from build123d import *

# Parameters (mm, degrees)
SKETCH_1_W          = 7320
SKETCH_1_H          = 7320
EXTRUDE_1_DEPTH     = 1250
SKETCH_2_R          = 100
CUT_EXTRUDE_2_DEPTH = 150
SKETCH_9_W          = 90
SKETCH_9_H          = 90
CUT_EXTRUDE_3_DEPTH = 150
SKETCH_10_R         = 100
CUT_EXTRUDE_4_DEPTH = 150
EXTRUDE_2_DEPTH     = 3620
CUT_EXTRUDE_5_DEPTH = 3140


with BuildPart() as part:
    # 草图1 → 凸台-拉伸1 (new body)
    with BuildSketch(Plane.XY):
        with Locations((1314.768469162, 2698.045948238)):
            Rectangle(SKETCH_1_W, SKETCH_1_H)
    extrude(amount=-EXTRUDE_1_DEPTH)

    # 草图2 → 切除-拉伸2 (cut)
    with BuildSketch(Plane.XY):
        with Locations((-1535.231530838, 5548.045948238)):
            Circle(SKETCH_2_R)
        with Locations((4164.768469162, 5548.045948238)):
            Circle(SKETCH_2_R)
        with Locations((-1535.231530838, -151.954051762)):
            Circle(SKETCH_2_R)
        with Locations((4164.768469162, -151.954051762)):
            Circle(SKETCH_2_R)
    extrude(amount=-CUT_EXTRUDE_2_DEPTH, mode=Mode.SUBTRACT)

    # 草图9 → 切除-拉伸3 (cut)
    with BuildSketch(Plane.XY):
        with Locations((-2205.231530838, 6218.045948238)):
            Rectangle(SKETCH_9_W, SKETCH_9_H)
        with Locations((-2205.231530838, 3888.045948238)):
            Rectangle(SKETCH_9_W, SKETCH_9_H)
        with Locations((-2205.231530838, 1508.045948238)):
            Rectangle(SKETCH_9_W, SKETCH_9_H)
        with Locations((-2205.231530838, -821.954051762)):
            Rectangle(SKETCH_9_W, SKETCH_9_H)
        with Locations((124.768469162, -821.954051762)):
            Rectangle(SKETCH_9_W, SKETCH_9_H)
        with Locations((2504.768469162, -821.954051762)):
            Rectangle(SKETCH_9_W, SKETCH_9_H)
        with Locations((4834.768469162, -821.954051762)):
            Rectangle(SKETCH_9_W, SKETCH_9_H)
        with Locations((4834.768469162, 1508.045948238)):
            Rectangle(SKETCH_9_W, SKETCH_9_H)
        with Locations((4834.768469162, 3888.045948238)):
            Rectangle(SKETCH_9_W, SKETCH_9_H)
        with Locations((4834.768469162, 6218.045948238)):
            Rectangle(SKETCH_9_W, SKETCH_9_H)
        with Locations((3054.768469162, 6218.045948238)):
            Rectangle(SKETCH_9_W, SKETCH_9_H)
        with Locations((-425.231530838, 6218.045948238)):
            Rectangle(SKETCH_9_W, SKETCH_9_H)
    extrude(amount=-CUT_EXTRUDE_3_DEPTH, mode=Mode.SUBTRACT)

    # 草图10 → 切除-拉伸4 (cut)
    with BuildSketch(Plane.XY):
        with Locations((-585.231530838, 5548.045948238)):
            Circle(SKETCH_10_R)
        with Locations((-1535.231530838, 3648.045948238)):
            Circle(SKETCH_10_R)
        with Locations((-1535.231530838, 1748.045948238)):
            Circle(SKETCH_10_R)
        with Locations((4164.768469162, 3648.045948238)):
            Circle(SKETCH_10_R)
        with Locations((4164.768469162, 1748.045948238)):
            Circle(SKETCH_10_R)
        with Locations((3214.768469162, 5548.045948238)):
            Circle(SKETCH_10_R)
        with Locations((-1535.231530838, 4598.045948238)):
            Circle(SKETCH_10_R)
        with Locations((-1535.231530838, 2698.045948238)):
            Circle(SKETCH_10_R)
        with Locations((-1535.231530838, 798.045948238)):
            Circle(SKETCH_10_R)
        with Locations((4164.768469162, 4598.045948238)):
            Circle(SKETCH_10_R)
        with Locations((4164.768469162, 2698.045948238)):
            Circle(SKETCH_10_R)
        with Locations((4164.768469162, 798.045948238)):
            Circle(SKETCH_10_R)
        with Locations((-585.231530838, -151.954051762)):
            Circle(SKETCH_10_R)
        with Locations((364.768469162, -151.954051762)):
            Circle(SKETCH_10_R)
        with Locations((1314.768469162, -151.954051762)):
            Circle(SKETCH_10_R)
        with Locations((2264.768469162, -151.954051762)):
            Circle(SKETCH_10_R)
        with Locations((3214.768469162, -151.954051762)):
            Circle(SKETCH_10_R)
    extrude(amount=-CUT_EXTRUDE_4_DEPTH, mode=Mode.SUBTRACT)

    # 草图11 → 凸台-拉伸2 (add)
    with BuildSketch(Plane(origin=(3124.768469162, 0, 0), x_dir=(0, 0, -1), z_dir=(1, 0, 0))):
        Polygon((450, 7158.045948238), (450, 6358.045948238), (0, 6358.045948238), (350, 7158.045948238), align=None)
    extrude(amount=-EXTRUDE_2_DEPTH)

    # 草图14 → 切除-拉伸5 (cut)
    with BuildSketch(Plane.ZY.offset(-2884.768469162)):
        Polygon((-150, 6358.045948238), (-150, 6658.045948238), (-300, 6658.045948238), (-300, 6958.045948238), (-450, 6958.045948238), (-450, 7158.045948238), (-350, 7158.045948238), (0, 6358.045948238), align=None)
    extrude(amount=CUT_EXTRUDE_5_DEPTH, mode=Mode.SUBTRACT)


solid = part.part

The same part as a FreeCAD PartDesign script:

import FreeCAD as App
import Part
import Sketcher
from FreeCAD import Vector
Q = App.Units.Quantity


def add_polygon(sketch, points):
    """Adds a closed chain of lines whose ends are joined by coincident constraints."""
    first, n = sketch.GeometryCount, len(points)
    for a, b in zip(points, points[1:] + points[:1]):
        sketch.addGeometry(Part.LineSegment(App.Vector(*a, 0), App.Vector(*b, 0)), False)
    for i in range(n):
        sketch.addConstraint(Sketcher.Constraint("Coincident", first + i, 2, first + (i + 1) % n, 1))

doc = App.newDocument("Part")
body = doc.addObject("PartDesign::Body", "Body")

sketch1 = body.newObject("Sketcher::SketchObject", "Sketch")
sketch1.AttachmentSupport = (doc.getObject("XY_Plane"), [""])
sketch1.MapMode = "FlatFace"
add_polygon(sketch1, [(-2345, 6358), (-2345, -962), (4975, -962), (4975, 6358)])
sketch1.addConstraint(Sketcher.Constraint("Vertical", 0))
sketch1.addConstraint(Sketcher.Constraint("Horizontal", 1))
sketch1.addConstraint(Sketcher.Constraint("Vertical", 2))
sketch1.addConstraint(Sketcher.Constraint("Horizontal", 3))
sketch1.addConstraint(Sketcher.Constraint("Equal", 3, 0))
sketch1.addConstraint(Sketcher.Constraint("DistanceX", 1, 1, 1, 2, Q("7320 mm")))
sketch1.addConstraint(Sketcher.Constraint("DistanceX", 0, 2, -1, 1, Q("2345.231531 mm")))
sketch1.addConstraint(Sketcher.Constraint("DistanceY", 0, 2, -1, 1, Q("961.954052 mm")))
pad1 = body.newObject("PartDesign::Pad", "Pad")
pad1.Profile = sketch1
pad1.Length = 1250
pad1.Reversed = True

sketch2 = body.newObject("Sketcher::SketchObject", "Sketch001")
sketch2.AttachmentSupport = (doc.getObject("XY_Plane"), [""])
sketch2.MapMode = "FlatFace"
sketch2.addGeometry(Part.Circle(Vector(-1535, 5548, 0), Vector(0, 0, 1), 100), False)
sketch2.addGeometry(Part.Circle(Vector(4165, 5548, 0), Vector(0, 0, 1), 100), False)
sketch2.addGeometry(Part.Circle(Vector(-1535, -152, 0), Vector(0, 0, 1), 100), False)
sketch2.addGeometry(Part.Circle(Vector(4165, -152, 0), Vector(0, 0, 1), 100), False)
sketch2.addConstraint(Sketcher.Constraint("Equal", 0, 1))
sketch2.addConstraint(Sketcher.Constraint("Equal", 1, 2))
sketch2.addConstraint(Sketcher.Constraint("Equal", 2, 3))
sketch2.addConstraint(Sketcher.Constraint("Horizontal", 0, 3, 1, 3))
sketch2.addConstraint(Sketcher.Constraint("Horizontal", 2, 3, 3, 3))
sketch2.addConstraint(Sketcher.Constraint("Vertical", 0, 3, 2, 3))
sketch2.addConstraint(Sketcher.Constraint("Vertical", 1, 3, 3, 3))
sketch2.addConstraint(Sketcher.Constraint("Diameter", 0, Q("200 mm")))
sketch2.addConstraint(Sketcher.Constraint("DistanceX", 0, 3, 1, 3, Q("5700 mm")))
sketch2.addConstraint(Sketcher.Constraint("DistanceY", 2, 3, 0, 3, Q("5700 mm")))
sketch2.addConstraint(Sketcher.Constraint("DistanceX", 0, 3, -1, 1, Q("1535.231531 mm")))
sketch2.addConstraint(Sketcher.Constraint("DistanceY", -1, 1, 0, 3, Q("5548.045948 mm")))
pocket1 = body.newObject("PartDesign::Pocket", "Pocket")
pocket1.Profile = sketch2
pocket1.Length = 150

sketch3 = body.newObject("Sketcher::SketchObject", "Sketch002")
sketch3.AttachmentSupport = (doc.getObject("XY_Plane"), [""])
sketch3.MapMode = "FlatFace"
add_polygon(sketch3, [(-2250, 6263), (-2250, 6173), (-2160, 6173), (-2160, 6263)])
add_polygon(sketch3, [(-2250, 3933), (-2250, 3843), (-2160, 3843), (-2160, 3933)])
add_polygon(sketch3, [(-2250, 1553), (-2250, 1463), (-2160, 1463), (-2160, 1553)])
add_polygon(sketch3, [(-2250, -777), (-2250, -867), (-2160, -867), (-2160, -777)])
add_polygon(sketch3, [(80, -777), (80, -867), (170, -867), (170, -777)])
add_polygon(sketch3, [(2460, -777), (2460, -867), (2550, -867), (2550, -777)])
add_polygon(sketch3, [(4790, -777), (4790, -867), (4880, -867), (4880, -777)])
add_polygon(sketch3, [(4790, 1553), (4790, 1463), (4880, 1463), (4880, 1553)])
add_polygon(sketch3, [(4790, 3933), (4790, 3843), (4880, 3843), (4880, 3933)])
add_polygon(sketch3, [(4790, 6263), (4790, 6173), (4880, 6173), (4880, 6263)])
add_polygon(sketch3, [(3010, 6263), (3010, 6173), (3100, 6173), (3100, 6263)])
add_polygon(sketch3, [(-470, 6263), (-470, 6173), (-380, 6173), (-380, 6263)])
sketch3.addConstraint(Sketcher.Constraint("Vertical", 0))
sketch3.addConstraint(Sketcher.Constraint("Horizontal", 1))
sketch3.addConstraint(Sketcher.Constraint("Vertical", 2))
sketch3.addConstraint(Sketcher.Constraint("Horizontal", 3))
sketch3.addConstraint(Sketcher.Constraint("Vertical", 4))
sketch3.addConstraint(Sketcher.Constraint("Horizontal", 5))
sketch3.addConstraint(Sketcher.Constraint("Vertical", 6))
sketch3.addConstraint(Sketcher.Constraint("Horizontal", 7))
sketch3.addConstraint(Sketcher.Constraint("Vertical", 8))
sketch3.addConstraint(Sketcher.Constraint("Horizontal", 9))
sketch3.addConstraint(Sketcher.Constraint("Vertical", 10))
sketch3.addConstraint(Sketcher.Constraint("Horizontal", 11))
sketch3.addConstraint(Sketcher.Constraint("Vertical", 12))
sketch3.addConstraint(Sketcher.Constraint("Horizontal", 13))
sketch3.addConstraint(Sketcher.Constraint("Vertical", 14))
sketch3.addConstraint(Sketcher.Constraint("Horizontal", 15))
sketch3.addConstraint(Sketcher.Constraint("Vertical", 16))
sketch3.addConstraint(Sketcher.Constraint("Horizontal", 17))
sketch3.addConstraint(Sketcher.Constraint("Vertical", 18))
sketch3.addConstraint(Sketcher.Constraint("Horizontal", 19))
sketch3.addConstraint(Sketcher.Constraint("Vertical", 20))
sketch3.addConstraint(Sketcher.Constraint("Horizontal", 21))
sketch3.addConstraint(Sketcher.Constraint("Vertical", 22))
sketch3.addConstraint(Sketcher.Constraint("Horizontal", 23))
sketch3.addConstraint(Sketcher.Constraint("Vertical", 24))
sketch3.addConstraint(Sketcher.Constraint("Horizontal", 25))
sketch3.addConstraint(Sketcher.Constraint("Vertical", 26))
sketch3.addConstraint(Sketcher.Constraint("Horizontal", 27))
sketch3.addConstraint(Sketcher.Constraint("Vertical", 28))
sketch3.addConstraint(Sketcher.Constraint("Horizontal", 29))
sketch3.addConstraint(Sketcher.Constraint("Vertical", 30))
sketch3.addConstraint(Sketcher.Constraint("Horizontal", 31))
sketch3.addConstraint(Sketcher.Constraint("Vertical", 32))
sketch3.addConstraint(Sketcher.Constraint("Horizontal", 33))
sketch3.addConstraint(Sketcher.Constraint("Vertical", 34))
sketch3.addConstraint(Sketcher.Constraint("Horizontal", 35))
sketch3.addConstraint(Sketcher.Constraint("Vertical", 36))
sketch3.addConstraint(Sketcher.Constraint("Horizontal", 37))
sketch3.addConstraint(Sketcher.Constraint("Vertical", 38))
sketch3.addConstraint(Sketcher.Constraint("Horizontal", 39))
sketch3.addConstraint(Sketcher.Constraint("Vertical", 40))
sketch3.addConstraint(Sketcher.Constraint("Horizontal", 41))
sketch3.addConstraint(Sketcher.Constraint("Vertical", 42))
sketch3.addConstraint(Sketcher.Constraint("Horizontal", 43))
sketch3.addConstraint(Sketcher.Constraint("Vertical", 44))
sketch3.addConstraint(Sketcher.Constraint("Horizontal", 45))
sketch3.addConstraint(Sketcher.Constraint("Vertical", 46))
sketch3.addConstraint(Sketcher.Constraint("Horizontal", 47))
sketch3.addConstraint(Sketcher.Constraint("Horizontal", 13, 2, 16, 2))
sketch3.addConstraint(Sketcher.Constraint("Horizontal", 15, 2, 18, 2))
sketch3.addConstraint(Sketcher.Constraint("Horizontal", 17, 2, 20, 2))
sketch3.addConstraint(Sketcher.Constraint("Horizontal", 19, 2, 22, 2))
sketch3.addConstraint(Sketcher.Constraint("Horizontal", 21, 2, 24, 2))
sketch3.addConstraint(Sketcher.Constraint("Horizontal", 23, 2, 26, 2))
sketch3.addConstraint(Sketcher.Constraint("Horizontal", 9, 2, 28, 2))
sketch3.addConstraint(Sketcher.Constraint("Horizontal", 11, 2, 30, 2))
sketch3.addConstraint(Sketcher.Constraint("Horizontal", 5, 2, 32, 2))
sketch3.addConstraint(Sketcher.Constraint("Horizontal", 7, 2, 34, 2))
sketch3.addConstraint(Sketcher.Constraint("Horizontal", 1, 2, 36, 2))
sketch3.addConstraint(Sketcher.Constraint("Horizontal", 3, 2, 38, 2))
sketch3.addConstraint(Sketcher.Constraint("Horizontal", 37, 2, 40, 2))
sketch3.addConstraint(Sketcher.Constraint("Horizontal", 39, 2, 42, 2))
sketch3.addConstraint(Sketcher.Constraint("Horizontal", 41, 2, 44, 2))
sketch3.addConstraint(Sketcher.Constraint("Horizontal", 43, 2, 46, 2))
sketch3.addConstraint(Sketcher.Constraint("Vertical", 3, 2, 4, 2))
sketch3.addConstraint(Sketcher.Constraint("Vertical", 2, 2, 5, 2))
sketch3.addConstraint(Sketcher.Constraint("Vertical", 7, 2, 8, 2))
sketch3.addConstraint(Sketcher.Constraint("Vertical", 6, 2, 9, 2))
sketch3.addConstraint(Sketcher.Constraint("Vertical", 11, 2, 12, 2))
sketch3.addConstraint(Sketcher.Constraint("Vertical", 10, 2, 13, 2))
sketch3.addConstraint(Sketcher.Constraint("Vertical", 27, 2, 28, 2))
sketch3.addConstraint(Sketcher.Constraint("Vertical", 26, 2, 29, 2))
sketch3.addConstraint(Sketcher.Constraint("Vertical", 31, 2, 32, 2))
sketch3.addConstraint(Sketcher.Constraint("Vertical", 30, 2, 33, 2))
sketch3.addConstraint(Sketcher.Constraint("Vertical", 35, 2, 36, 2))
sketch3.addConstraint(Sketcher.Constraint("Vertical", 34, 2, 37, 2))
sketch3.addConstraint(Sketcher.Constraint("Equal", 15, 17))
sketch3.addConstraint(Sketcher.Constraint("Equal", 19, 21))
sketch3.addConstraint(Sketcher.Constraint("Equal", 23, 25))
sketch3.addConstraint(Sketcher.Constraint("Equal", 39, 41))
sketch3.addConstraint(Sketcher.Constraint("Equal", 43, 45))
sketch3.addConstraint(Sketcher.Constraint("Equal", 47, 0))
sketch3.addConstraint(Sketcher.Constraint("Equal", 2, 4))
sketch3.addConstraint(Sketcher.Constraint("Equal", 6, 8))
sketch3.addConstraint(Sketcher.Constraint("Equal", 10, 12))
sketch3.addConstraint(Sketcher.Constraint("DistanceX", 1, 1, 1, 2, Q("90 mm")))
sketch3.addConstraint(Sketcher.Constraint("DistanceY", 4, 2, 0, 2, Q("2330 mm")))
sketch3.addConstraint(Sketcher.Constraint("DistanceY", 8, 2, 4, 2, Q("2380 mm")))
sketch3.addConstraint(Sketcher.Constraint("DistanceY", 12, 2, 8, 2, Q("2330 mm")))
sketch3.addConstraint(Sketcher.Constraint("DistanceX", 13, 2, 16, 2, Q("2240 mm")))
sketch3.addConstraint(Sketcher.Constraint("DistanceX", 17, 2, 20, 2, Q("2290 mm")))
sketch3.addConstraint(Sketcher.Constraint("DistanceX", 21, 2, 24, 2, Q("2240 mm")))
sketch3.addConstraint(Sketcher.Constraint("DistanceX", 40, 2, 36, 2, Q("1780 mm")))
sketch3.addConstraint(Sketcher.Constraint("DistanceX", 1, 2, 44, 2, Q("1690 mm")))
sketch3.addConstraint(Sketcher.Constraint("DistanceX", 0, 2, -1, 1, Q("2250.231531 mm")))
sketch3.addConstraint(Sketcher.Constraint("DistanceY", -1, 1, 0, 2, Q("6173.045948 mm")))
pocket2 = body.newObject("PartDesign::Pocket", "Pocket001")
pocket2.Profile = sketch3
pocket2.Length = 150

sketch4 = body.newObject("Sketcher::SketchObject", "Sketch003")
sketch4.AttachmentSupport = (doc.getObject("XY_Plane"), [""])
sketch4.MapMode = "FlatFace"
sketch4.addGeometry(Part.Circle(Vector(-585, 5548, 0), Vector(0, 0, 1), 100), False)
sketch4.addGeometry(Part.Circle(Vector(-1535, 3648, 0), Vector(0, 0, 1), 100), False)
sketch4.addGeometry(Part.Circle(Vector(-1535, 1748, 0), Vector(0, 0, 1), 100), False)
sketch4.addGeometry(Part.Circle(Vector(4165, 3648, 0), Vector(0, 0, 1), 100), False)
sketch4.addGeometry(Part.Circle(Vector(4165, 1748, 0), Vector(0, 0, 1), 100), False)
sketch4.addGeometry(Part.Circle(Vector(3215, 5548, 0), Vector(0, 0, 1), 100), False)
sketch4.addGeometry(Part.Circle(Vector(-1535, 4598, 0), Vector(0, 0, 1), 100), False)
sketch4.addGeometry(Part.Circle(Vector(-1535, 2698, 0), Vector(0, 0, 1), 100), False)
sketch4.addGeometry(Part.Circle(Vector(-1535, 798, 0), Vector(0, 0, 1), 100), False)
sketch4.addGeometry(Part.Circle(Vector(4165, 4598, 0), Vector(0, 0, 1), 100), False)
sketch4.addGeometry(Part.Circle(Vector(4165, 2698, 0), Vector(0, 0, 1), 100), False)
sketch4.addGeometry(Part.Circle(Vector(4165, 798, 0), Vector(0, 0, 1), 100), False)
sketch4.addGeometry(Part.Circle(Vector(-585, -152, 0), Vector(0, 0, 1), 100), False)
sketch4.addGeometry(Part.Circle(Vector(365, -152, 0), Vector(0, 0, 1), 100), False)
sketch4.addGeometry(Part.Circle(Vector(1315, -152, 0), Vector(0, 0, 1), 100), False)
sketch4.addGeometry(Part.Circle(Vector(2265, -152, 0), Vector(0, 0, 1), 100), False)
sketch4.addGeometry(Part.Circle(Vector(3215, -152, 0), Vector(0, 0, 1), 100), False)
sketch4.addConstraint(Sketcher.Constraint("Equal", 0, 1))
sketch4.addConstraint(Sketcher.Constraint("Equal", 1, 2))
sketch4.addConstraint(Sketcher.Constraint("Equal", 2, 3))
sketch4.addConstraint(Sketcher.Constraint("Equal", 3, 4))
sketch4.addConstraint(Sketcher.Constraint("Equal", 4, 5))
sketch4.addConstraint(Sketcher.Constraint("Equal", 5, 6))
sketch4.addConstraint(Sketcher.Constraint("Equal", 6, 7))
sketch4.addConstraint(Sketcher.Constraint("Equal", 7, 8))
sketch4.addConstraint(Sketcher.Constraint("Equal", 8, 9))
sketch4.addConstraint(Sketcher.Constraint("Equal", 9, 10))
sketch4.addConstraint(Sketcher.Constraint("Equal", 10, 11))
sketch4.addConstraint(Sketcher.Constraint("Equal", 11, 12))
sketch4.addConstraint(Sketcher.Constraint("Equal", 12, 13))
sketch4.addConstraint(Sketcher.Constraint("Equal", 13, 14))
sketch4.addConstraint(Sketcher.Constraint("Equal", 14, 15))
sketch4.addConstraint(Sketcher.Constraint("Equal", 15, 16))
sketch4.addConstraint(Sketcher.Constraint("Horizontal", 1, 3, 3, 3))
sketch4.addConstraint(Sketcher.Constraint("Horizontal", 2, 3, 4, 3))
sketch4.addConstraint(Sketcher.Constraint("Horizontal", 0, 3, 5, 3))
sketch4.addConstraint(Sketcher.Constraint("Horizontal", 6, 3, 9, 3))
sketch4.addConstraint(Sketcher.Constraint("Horizontal", 7, 3, 10, 3))
sketch4.addConstraint(Sketcher.Constraint("Horizontal", 8, 3, 11, 3))
sketch4.addConstraint(Sketcher.Constraint("Horizontal", 12, 3, 13, 3))
sketch4.addConstraint(Sketcher.Constraint("Horizontal", 13, 3, 14, 3))
sketch4.addConstraint(Sketcher.Constraint("Horizontal", 14, 3, 15, 3))
sketch4.addConstraint(Sketcher.Constraint("Horizontal", 15, 3, 16, 3))
sketch4.addConstraint(Sketcher.Constraint("Vertical", 1, 3, 2, 3))
sketch4.addConstraint(Sketcher.Constraint("Vertical", 3, 3, 4, 3))
sketch4.addConstraint(Sketcher.Constraint("Vertical", 2, 3, 6, 3))
sketch4.addConstraint(Sketcher.Constraint("Vertical", 6, 3, 7, 3))
sketch4.addConstraint(Sketcher.Constraint("Vertical", 7, 3, 8, 3))
sketch4.addConstraint(Sketcher.Constraint("Vertical", 4, 3, 9, 3))
sketch4.addConstraint(Sketcher.Constraint("Vertical", 9, 3, 10, 3))
sketch4.addConstraint(Sketcher.Constraint("Vertical", 10, 3, 11, 3))
sketch4.addConstraint(Sketcher.Constraint("Vertical", 0, 3, 12, 3))
sketch4.addConstraint(Sketcher.Constraint("Vertical", 5, 3, 16, 3))
sketch4.addConstraint(Sketcher.Constraint("Diameter", 0, Q("200 mm")))
sketch4.addConstraint(Sketcher.Constraint("DistanceX", 1, 3, 0, 3, Q("950 mm")))
sketch4.addConstraint(Sketcher.Constraint("DistanceY", 1, 3, 0, 3, Q("1900 mm")))
sketch4.addConstraint(Sketcher.Constraint("DistanceY", 2, 3, 1, 3, Q("1900 mm")))
sketch4.addConstraint(Sketcher.Constraint("DistanceX", 0, 3, 3, 3, Q("4750 mm")))
sketch4.addConstraint(Sketcher.Constraint("DistanceX", 5, 3, 3, 3, Q("950 mm")))
sketch4.addConstraint(Sketcher.Constraint("DistanceY", 1, 3, 6, 3, Q("950 mm")))
sketch4.addConstraint(Sketcher.Constraint("DistanceY", 7, 3, 1, 3, Q("950 mm")))
sketch4.addConstraint(Sketcher.Constraint("DistanceY", 8, 3, 2, 3, Q("950 mm")))
sketch4.addConstraint(Sketcher.Constraint("DistanceY", 12, 3, 8, 3, Q("950 mm")))
sketch4.addConstraint(Sketcher.Constraint("DistanceX", 12, 3, 13, 3, Q("950 mm")))
sketch4.addConstraint(Sketcher.Constraint("DistanceX", 13, 3, 14, 3, Q("950 mm")))
sketch4.addConstraint(Sketcher.Constraint("DistanceX", 14, 3, 15, 3, Q("950 mm")))
sketch4.addConstraint(Sketcher.Constraint("DistanceX", 0, 3, -1, 1, Q("585.231531 mm")))
sketch4.addConstraint(Sketcher.Constraint("DistanceY", -1, 1, 0, 3, Q("5548.045948 mm")))
pocket3 = body.newObject("PartDesign::Pocket", "Pocket002")
pocket3.Profile = sketch4
pocket3.Length = 150

sketch5 = body.newObject("Sketcher::SketchObject", "Sketch004")
sketch5.AttachmentSupport = (doc.getObject("YZ_Plane"), [""])
sketch5.MapMode = "FlatFace"
sketch5.AttachmentOffset = App.Placement(Vector(0, 0, 3124.768469), App.Rotation())
add_polygon(sketch5, [(6358, -450), (7158, -450), (7158, -350), (6358, 0)])
sketch5.addConstraint(Sketcher.Constraint("Horizontal", 0))
sketch5.addConstraint(Sketcher.Constraint("Vertical", 1))
sketch5.addConstraint(Sketcher.Constraint("Vertical", 3))
sketch5.addConstraint(Sketcher.Constraint("PointOnObject", 2, 2, -1))
sketch5.addConstraint(Sketcher.Constraint("DistanceX", 0, 1, 0, 2, Q("800 mm")))
sketch5.addConstraint(Sketcher.Constraint("DistanceY", 1, 1, 1, 2, Q("100 mm")))
sketch5.addConstraint(Sketcher.Constraint("DistanceY", 3, 2, 3, 1, Q("450 mm")))
sketch5.addConstraint(Sketcher.Constraint("DistanceX", -1, 1, 0, 2, Q("7158.045948 mm")))
pad2 = body.newObject("PartDesign::Pad", "Pad001")
pad2.Profile = sketch5
pad2.Length = 3620
pad2.Reversed = True

sketch6 = body.newObject("Sketcher::SketchObject", "Sketch005")
sketch6.AttachmentSupport = (doc.getObject("YZ_Plane"), [""])
sketch6.MapMode = "FlatFace"
sketch6.AttachmentOffset = App.Placement(Vector(0, 0, 2884.768469), App.Rotation())
add_polygon(sketch6, [(6658, -150), (6358, -150), (6358, 0), (7158, -350), (7158, -450), (6958, -450), (6958, -300), (6658, -300)])
sketch6.addConstraint(Sketcher.Constraint("Horizontal", 0))
sketch6.addConstraint(Sketcher.Constraint("Vertical", 1))
sketch6.addConstraint(Sketcher.Constraint("Vertical", 3))
sketch6.addConstraint(Sketcher.Constraint("Horizontal", 4))
sketch6.addConstraint(Sketcher.Constraint("Vertical", 5))
sketch6.addConstraint(Sketcher.Constraint("Horizontal", 6))
sketch6.addConstraint(Sketcher.Constraint("Vertical", 7))
sketch6.addConstraint(Sketcher.Constraint("PointOnObject", 1, 2, -1))
sketch6.addConstraint(Sketcher.Constraint("Equal", 0, 6))
sketch6.addConstraint(Sketcher.Constraint("Equal", 1, 5))
sketch6.addConstraint(Sketcher.Constraint("Equal", 5, 7))
sketch6.addConstraint(Sketcher.Constraint("DistanceX", 0, 2, 0, 1, Q("300 mm")))
sketch6.addConstraint(Sketcher.Constraint("DistanceX", 4, 2, 4, 1, Q("200 mm")))
sketch6.addConstraint(Sketcher.Constraint("DistanceY", 1, 1, 1, 2, Q("150 mm")))
sketch6.addConstraint(Sketcher.Constraint("DistanceY", 3, 2, 3, 1, Q("100 mm")))
sketch6.addConstraint(Sketcher.Constraint("DistanceX", -1, 1, 0, 2, Q("6358.045948 mm")))
pocket4 = body.newObject("PartDesign::Pocket", "Pocket003")
pocket4.Profile = sketch6
pocket4.Length = 3140

doc.recompute()
